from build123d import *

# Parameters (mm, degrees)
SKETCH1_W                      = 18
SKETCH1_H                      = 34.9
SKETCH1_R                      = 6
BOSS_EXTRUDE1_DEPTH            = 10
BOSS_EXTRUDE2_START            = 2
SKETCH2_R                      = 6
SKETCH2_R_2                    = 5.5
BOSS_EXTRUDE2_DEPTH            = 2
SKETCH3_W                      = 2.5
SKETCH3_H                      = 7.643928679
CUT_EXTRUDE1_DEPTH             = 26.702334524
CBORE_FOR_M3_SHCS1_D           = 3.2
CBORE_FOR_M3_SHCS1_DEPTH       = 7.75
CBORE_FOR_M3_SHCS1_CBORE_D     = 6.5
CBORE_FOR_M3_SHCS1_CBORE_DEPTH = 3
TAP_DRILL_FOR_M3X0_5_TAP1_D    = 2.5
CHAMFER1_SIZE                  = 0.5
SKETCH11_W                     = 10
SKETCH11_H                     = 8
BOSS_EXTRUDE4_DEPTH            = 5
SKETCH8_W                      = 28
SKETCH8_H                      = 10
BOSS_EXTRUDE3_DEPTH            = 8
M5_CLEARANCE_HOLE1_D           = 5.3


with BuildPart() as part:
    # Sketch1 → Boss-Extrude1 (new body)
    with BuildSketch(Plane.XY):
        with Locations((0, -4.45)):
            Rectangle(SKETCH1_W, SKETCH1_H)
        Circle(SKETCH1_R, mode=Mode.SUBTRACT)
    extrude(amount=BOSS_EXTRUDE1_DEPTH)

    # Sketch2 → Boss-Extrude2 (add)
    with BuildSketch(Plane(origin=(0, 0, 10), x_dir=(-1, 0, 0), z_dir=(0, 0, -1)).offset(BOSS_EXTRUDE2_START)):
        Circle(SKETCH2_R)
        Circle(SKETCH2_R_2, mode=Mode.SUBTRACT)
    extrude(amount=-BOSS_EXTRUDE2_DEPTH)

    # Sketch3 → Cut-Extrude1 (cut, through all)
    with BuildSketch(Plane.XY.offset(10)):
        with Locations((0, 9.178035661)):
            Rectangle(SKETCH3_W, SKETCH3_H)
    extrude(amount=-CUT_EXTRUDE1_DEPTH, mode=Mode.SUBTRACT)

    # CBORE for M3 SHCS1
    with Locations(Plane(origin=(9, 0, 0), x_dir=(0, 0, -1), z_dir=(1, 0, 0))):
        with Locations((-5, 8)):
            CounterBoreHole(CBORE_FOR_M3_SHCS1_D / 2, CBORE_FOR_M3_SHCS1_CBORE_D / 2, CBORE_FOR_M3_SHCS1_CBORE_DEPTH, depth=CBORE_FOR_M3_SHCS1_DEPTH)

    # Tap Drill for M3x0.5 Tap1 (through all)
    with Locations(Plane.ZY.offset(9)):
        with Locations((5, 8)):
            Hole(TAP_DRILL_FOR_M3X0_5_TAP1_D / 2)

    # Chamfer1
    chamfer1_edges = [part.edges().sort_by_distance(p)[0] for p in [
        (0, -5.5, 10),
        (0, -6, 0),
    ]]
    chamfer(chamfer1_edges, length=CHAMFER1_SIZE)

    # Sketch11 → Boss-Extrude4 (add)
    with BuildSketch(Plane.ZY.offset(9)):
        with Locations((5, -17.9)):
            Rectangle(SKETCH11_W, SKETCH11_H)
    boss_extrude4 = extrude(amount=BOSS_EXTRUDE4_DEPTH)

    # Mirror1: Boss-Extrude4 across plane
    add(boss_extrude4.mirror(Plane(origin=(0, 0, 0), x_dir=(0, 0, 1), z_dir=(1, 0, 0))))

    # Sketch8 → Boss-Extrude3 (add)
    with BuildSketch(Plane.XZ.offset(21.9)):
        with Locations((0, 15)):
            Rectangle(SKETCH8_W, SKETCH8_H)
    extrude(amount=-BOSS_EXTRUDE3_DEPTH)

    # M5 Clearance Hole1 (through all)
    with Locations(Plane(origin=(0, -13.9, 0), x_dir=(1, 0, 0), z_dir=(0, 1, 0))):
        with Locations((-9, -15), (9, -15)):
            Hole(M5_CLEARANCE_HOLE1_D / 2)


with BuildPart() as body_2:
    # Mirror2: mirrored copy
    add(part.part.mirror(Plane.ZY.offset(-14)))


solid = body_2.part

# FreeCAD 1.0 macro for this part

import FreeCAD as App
import Part
import Sketcher
from FreeCAD import Vector


def edges_at(feature, points):
    """Names of the edges that pass closest to the given points."""
    edges = feature.Shape.Edges
    near = lambda p: min(range(len(edges)), key=lambda i: edges[i].distToShape(Part.Vertex(*p))[0])
    return sorted({f"Edge{near(p) + 1}" for p in points})


def add_polygon(sketch, points):
    """Adds a closed chain of lines whose ends are joined by coincident constraints."""
    first, n = sketch.GeometryCount, len(points)
    for a, b in zip(points, points[1:] + points[:1]):
        sketch.addGeometry(Part.LineSegment(App.Vector(*a, 0), App.Vector(*b, 0)), False)
    for i in range(n):
        sketch.addConstraint(Sketcher.Constraint("Coincident", first + i, 2, first + (i + 1) % n, 1))

doc = App.newDocument("Part")
body = doc.addObject("PartDesign::Body", "Body")

sketch1 = body.newObject("Sketcher::SketchObject", "Sketch")
sketch1.AttachmentSupport = (doc.getObject("XY_Plane"), [""])
sketch1.MapMode = "FlatFace"
add_polygon(sketch1, [(-9, 13), (-9, -21.9), (9, -21.9), (9, 13)])
sketch1.addGeometry(Part.Circle(Vector(0, 0, 0), Vector(0, 0, 1), 6), False)
sketch1.addConstraint([
    Sketcher.Constraint("Vertical", 0),
    Sketcher.Constraint("Horizontal", 1),
    Sketcher.Constraint("Vertical", 2),
    Sketcher.Constraint("Horizontal", 3),
    Sketcher.Constraint("Coincident", 4, 3, -1, 1),
    Sketcher.Constraint("Diameter", 4, 12.0),
    Sketcher.Constraint("DistanceX", 1, 1, 1, 2, 18.0),
    Sketcher.Constraint("DistanceY", 0, 2, 0, 1, 34.9),
    Sketcher.Constraint("DistanceX", 0, 2, -1, 1, 9.0),
    Sketcher.Constraint("DistanceY", -1, 1, 2, 2, 13.0),
])
pad1 = body.newObject("PartDesign::Pad", "Pad")
pad1.Profile = sketch1
pad1.Length = 10

sketch2 = body.newObject("Sketcher::SketchObject", "Sketch001")
sketch2.AttachmentSupport = (doc.getObject("XY_Plane"), [""])
sketch2.MapMode = "FlatFace"
sketch2.AttachmentOffset = App.Placement(Vector(0, 0, 8), App.Rotation())
sketch2.addGeometry([
    Part.Circle(Vector(0, 0, 0), Vector(0, 0, 1), 6),
    Part.Circle(Vector(0, 0, 0), Vector(0, 0, 1), 5.5),
], False)
sketch2.addConstraint([
    Sketcher.Constraint("Coincident", 0, 3, -1, 1),
    Sketcher.Constraint("Coincident", 1, 3, -1, 1),
    Sketcher.Constraint("Diameter", 0, 12.0),
    Sketcher.Constraint("Diameter", 1, 11.0),
])
pad2 = body.newObject("PartDesign::Pad", "Pad001")
pad2.Profile = sketch2
pad2.Length = 2

sketch3 = body.newObject("Sketcher::SketchObject", "Sketch002")
sketch3.AttachmentSupport = (doc.getObject("XY_Plane"), [""])
sketch3.MapMode = "FlatFace"
sketch3.AttachmentOffset = App.Placement(Vector(0, 0, 10), App.Rotation())
add_polygon(sketch3, [(-1.25, 13), (-1.25, 5.356071), (1.25, 5.356071), (1.25, 13)])
sketch3.addConstraint([
    Sketcher.Constraint("Vertical", 0),
    Sketcher.Constraint("Horizontal", 1),
    Sketcher.Constraint("Vertical", 2),
    Sketcher.Constraint("Horizontal", 3),
    Sketcher.Constraint("DistanceX", 1, 1, 1, 2, 2.5),
    Sketcher.Constraint("DistanceY", -1, 1, 2, 2, 13.0),
    Sketcher.Constraint("DistanceX", 0, 2, -1, 1, 1.25),
    Sketcher.Constraint("DistanceY", 0, 2, 0, 1, 7.643929),
])
pocket1 = body.newObject("PartDesign::Pocket", "Pocket")
pocket1.Profile = sketch3
pocket1.Type = "ThroughAll"

sketch4 = body.newObject("Sketcher::SketchObject", "Sketch003")
sketch4.AttachmentSupport = (doc.getObject("YZ_Plane"), [""])
sketch4.MapMode = "FlatFace"
sketch4.AttachmentOffset = App.Placement(Vector(0, 0, 9), App.Rotation())
sketch4.addGeometry(Part.Circle(Vector(8, 5, 0), Vector(0, 0, 1), 1.6), False)
sketch4.addConstraint([
    Sketcher.Constraint("Diameter", 0, 3.2),
    Sketcher.Constraint("DistanceX", -1, 1, 0, 3, 8.0),
    Sketcher.Constraint("DistanceY", -1, 1, 0, 3, 5.0),
])
doc.recompute()
hole = body.newObject("PartDesign::Hole", "Hole")
hole.Profile = sketch4
hole.ThreadType = "None"
hole.Diameter = 3.2
hole.DepthType = "Dimension"
hole.Depth = 7.75
hole.DrillPoint = "Flat"
hole.HoleCutType = "Counterbore"
hole.HoleCutDiameter = 6.5
hole.HoleCutDepth = 3

sketch5 = body.newObject("Sketcher::SketchObject", "Sketch004")
sketch5.AttachmentSupport = (doc.getObject("YZ_Plane"), [""])
sketch5.MapMode = "FlatFace"
sketch5.AttachmentOffset = App.Placement(Vector(0, 0, -9), App.Rotation())
sketch5.addGeometry(Part.Circle(Vector(8, 5, 0), Vector(0, 0, 1), 1.25), False)
sketch5.addConstraint([
    Sketcher.Constraint("Diameter", 0, 2.5),
    Sketcher.Constraint("DistanceX", -1, 1, 0, 3, 8.0),
    Sketcher.Constraint("DistanceY", -1, 1, 0, 3, 5.0),
])
doc.recompute()
hole2 = body.newObject("PartDesign::Hole", "Hole001")
hole2.Profile = sketch5
hole2.ThreadType = "None"
hole2.Diameter = 2.5
hole2.DepthType = "ThroughAll"
hole2.Reversed = True
doc.recompute()

chamfer = body.newObject("PartDesign::Chamfer", "Chamfer")
chamfer.Base = (hole2, edges_at(hole2, [(0, -5.5, 10), (0, -6, 0)]))
chamfer.Size = 0.5

sketch6 = body.newObject("Sketcher::SketchObject", "Sketch005")
sketch6.AttachmentSupport = (doc.getObject("YZ_Plane"), [""])
sketch6.MapMode = "FlatFace"
sketch6.AttachmentOffset = App.Placement(Vector(0, 0, -9), App.Rotation())
add_polygon(sketch6, [(-13.9, 0), (-21.9, 0), (-21.9, 10), (-13.9, 10)])
sketch6.addConstraint([
    Sketcher.Constraint("Horizontal", 0),
    Sketcher.Constraint("Vertical", 1),
    Sketcher.Constraint("Horizontal", 2),
    Sketcher.Constraint("Vertical", 3),
    Sketcher.Constraint("PointOnObject", 0, 2, -1),
    Sketcher.Constraint("DistanceX", 0, 2, 0, 1, 8.0),
    Sketcher.Constraint("DistanceY", 1, 1, 1, 2, 10.0),
    Sketcher.Constraint("DistanceX", 0, 2, -1, 1, 21.9),
])
pad3 = body.newObject("PartDesign::Pad", "Pad002")
pad3.Profile = sketch6
pad3.Length = 5
pad3.Reversed = True
doc.recompute()

mirrored = body.newObject("PartDesign::Mirrored", "Mirrored")
mirrored.Originals = [pad3]
mirrored.MirrorPlane = (doc.getObject("YZ_Plane"), [""])
body.Tip = mirrored

sketch7 = body.newObject("Sketcher::SketchObject", "Sketch006")
sketch7.AttachmentSupport = (doc.getObject("XZ_Plane"), [""])
sketch7.MapMode = "FlatFace"
sketch7.AttachmentOffset = App.Placement(Vector(0, 0, 21.9), App.Rotation())
add_polygon(sketch7, [(-14, 20), (-14, 10), (14, 10), (14, 20)])
sketch7.addConstraint([
    Sketcher.Constraint("Vertical", 0),
    Sketcher.Constraint("Horizontal", 1),
    Sketcher.Constraint("Vertical", 2),
    Sketcher.Constraint("Horizontal", 3),
    Sketcher.Constraint("DistanceX", 1, 1, 1, 2, 28.0),
    Sketcher.Constraint("DistanceY", 0, 2, 0, 1, 10.0),
    Sketcher.Constraint("DistanceX", 0, 2, -1, 1, 14.0),
    Sketcher.Constraint("DistanceY", -1, 1, 0, 2, 10.0),
])
pad4 = body.newObject("PartDesign::Pad", "Pad003")
pad4.Profile = sketch7
pad4.Length = 8
pad4.Reversed = True

sketch8 = body.newObject("Sketcher::SketchObject", "Sketch007")
sketch8.AttachmentSupport = (doc.getObject("XZ_Plane"), [""])
sketch8.MapMode = "FlatFace"
sketch8.AttachmentOffset = App.Placement(Vector(0, 0, 13.9), App.Rotation())
sketch8.addGeometry([
    Part.Circle(Vector(-9, 15, 0), Vector(0, 0, 1), 2.65),
    Part.Circle(Vector(9, 15, 0), Vector(0, 0, 1), 2.65),
], False)
sketch8.addConstraint([
    Sketcher.Constraint("Equal", 0, 1),
    Sketcher.Constraint("Symmetric", 0, 3, 1, 3, -2),
    Sketcher.Constraint("Diameter", 0, 5.3),
    Sketcher.Constraint("DistanceX", 0, 3, -1, 1, 9.0),
    Sketcher.Constraint("DistanceY", -1, 1, 0, 3, 15.0),
])
doc.recompute()
hole3 = body.newObject("PartDesign::Hole", "Hole002")
hole3.Profile = sketch8
hole3.ThreadType = "None"
hole3.Diameter = 5.3
hole3.DepthType = "ThroughAll"
hole3.Reversed = True
body2 = doc.addObject("PartDesign::Body", "Body001")
doc.recompute()

mirroring = doc.addObject("Part::Mirroring", "Mirroring")
mirroring.Source = body
mirroring.Base = Vector(14, 0, 0)
mirroring.Normal = Vector(-1, 0, 0)
body2.BaseFeature = mirroring
doc.recompute()
body.Visibility = False
mirroring.Visibility = False

doc.recompute()
